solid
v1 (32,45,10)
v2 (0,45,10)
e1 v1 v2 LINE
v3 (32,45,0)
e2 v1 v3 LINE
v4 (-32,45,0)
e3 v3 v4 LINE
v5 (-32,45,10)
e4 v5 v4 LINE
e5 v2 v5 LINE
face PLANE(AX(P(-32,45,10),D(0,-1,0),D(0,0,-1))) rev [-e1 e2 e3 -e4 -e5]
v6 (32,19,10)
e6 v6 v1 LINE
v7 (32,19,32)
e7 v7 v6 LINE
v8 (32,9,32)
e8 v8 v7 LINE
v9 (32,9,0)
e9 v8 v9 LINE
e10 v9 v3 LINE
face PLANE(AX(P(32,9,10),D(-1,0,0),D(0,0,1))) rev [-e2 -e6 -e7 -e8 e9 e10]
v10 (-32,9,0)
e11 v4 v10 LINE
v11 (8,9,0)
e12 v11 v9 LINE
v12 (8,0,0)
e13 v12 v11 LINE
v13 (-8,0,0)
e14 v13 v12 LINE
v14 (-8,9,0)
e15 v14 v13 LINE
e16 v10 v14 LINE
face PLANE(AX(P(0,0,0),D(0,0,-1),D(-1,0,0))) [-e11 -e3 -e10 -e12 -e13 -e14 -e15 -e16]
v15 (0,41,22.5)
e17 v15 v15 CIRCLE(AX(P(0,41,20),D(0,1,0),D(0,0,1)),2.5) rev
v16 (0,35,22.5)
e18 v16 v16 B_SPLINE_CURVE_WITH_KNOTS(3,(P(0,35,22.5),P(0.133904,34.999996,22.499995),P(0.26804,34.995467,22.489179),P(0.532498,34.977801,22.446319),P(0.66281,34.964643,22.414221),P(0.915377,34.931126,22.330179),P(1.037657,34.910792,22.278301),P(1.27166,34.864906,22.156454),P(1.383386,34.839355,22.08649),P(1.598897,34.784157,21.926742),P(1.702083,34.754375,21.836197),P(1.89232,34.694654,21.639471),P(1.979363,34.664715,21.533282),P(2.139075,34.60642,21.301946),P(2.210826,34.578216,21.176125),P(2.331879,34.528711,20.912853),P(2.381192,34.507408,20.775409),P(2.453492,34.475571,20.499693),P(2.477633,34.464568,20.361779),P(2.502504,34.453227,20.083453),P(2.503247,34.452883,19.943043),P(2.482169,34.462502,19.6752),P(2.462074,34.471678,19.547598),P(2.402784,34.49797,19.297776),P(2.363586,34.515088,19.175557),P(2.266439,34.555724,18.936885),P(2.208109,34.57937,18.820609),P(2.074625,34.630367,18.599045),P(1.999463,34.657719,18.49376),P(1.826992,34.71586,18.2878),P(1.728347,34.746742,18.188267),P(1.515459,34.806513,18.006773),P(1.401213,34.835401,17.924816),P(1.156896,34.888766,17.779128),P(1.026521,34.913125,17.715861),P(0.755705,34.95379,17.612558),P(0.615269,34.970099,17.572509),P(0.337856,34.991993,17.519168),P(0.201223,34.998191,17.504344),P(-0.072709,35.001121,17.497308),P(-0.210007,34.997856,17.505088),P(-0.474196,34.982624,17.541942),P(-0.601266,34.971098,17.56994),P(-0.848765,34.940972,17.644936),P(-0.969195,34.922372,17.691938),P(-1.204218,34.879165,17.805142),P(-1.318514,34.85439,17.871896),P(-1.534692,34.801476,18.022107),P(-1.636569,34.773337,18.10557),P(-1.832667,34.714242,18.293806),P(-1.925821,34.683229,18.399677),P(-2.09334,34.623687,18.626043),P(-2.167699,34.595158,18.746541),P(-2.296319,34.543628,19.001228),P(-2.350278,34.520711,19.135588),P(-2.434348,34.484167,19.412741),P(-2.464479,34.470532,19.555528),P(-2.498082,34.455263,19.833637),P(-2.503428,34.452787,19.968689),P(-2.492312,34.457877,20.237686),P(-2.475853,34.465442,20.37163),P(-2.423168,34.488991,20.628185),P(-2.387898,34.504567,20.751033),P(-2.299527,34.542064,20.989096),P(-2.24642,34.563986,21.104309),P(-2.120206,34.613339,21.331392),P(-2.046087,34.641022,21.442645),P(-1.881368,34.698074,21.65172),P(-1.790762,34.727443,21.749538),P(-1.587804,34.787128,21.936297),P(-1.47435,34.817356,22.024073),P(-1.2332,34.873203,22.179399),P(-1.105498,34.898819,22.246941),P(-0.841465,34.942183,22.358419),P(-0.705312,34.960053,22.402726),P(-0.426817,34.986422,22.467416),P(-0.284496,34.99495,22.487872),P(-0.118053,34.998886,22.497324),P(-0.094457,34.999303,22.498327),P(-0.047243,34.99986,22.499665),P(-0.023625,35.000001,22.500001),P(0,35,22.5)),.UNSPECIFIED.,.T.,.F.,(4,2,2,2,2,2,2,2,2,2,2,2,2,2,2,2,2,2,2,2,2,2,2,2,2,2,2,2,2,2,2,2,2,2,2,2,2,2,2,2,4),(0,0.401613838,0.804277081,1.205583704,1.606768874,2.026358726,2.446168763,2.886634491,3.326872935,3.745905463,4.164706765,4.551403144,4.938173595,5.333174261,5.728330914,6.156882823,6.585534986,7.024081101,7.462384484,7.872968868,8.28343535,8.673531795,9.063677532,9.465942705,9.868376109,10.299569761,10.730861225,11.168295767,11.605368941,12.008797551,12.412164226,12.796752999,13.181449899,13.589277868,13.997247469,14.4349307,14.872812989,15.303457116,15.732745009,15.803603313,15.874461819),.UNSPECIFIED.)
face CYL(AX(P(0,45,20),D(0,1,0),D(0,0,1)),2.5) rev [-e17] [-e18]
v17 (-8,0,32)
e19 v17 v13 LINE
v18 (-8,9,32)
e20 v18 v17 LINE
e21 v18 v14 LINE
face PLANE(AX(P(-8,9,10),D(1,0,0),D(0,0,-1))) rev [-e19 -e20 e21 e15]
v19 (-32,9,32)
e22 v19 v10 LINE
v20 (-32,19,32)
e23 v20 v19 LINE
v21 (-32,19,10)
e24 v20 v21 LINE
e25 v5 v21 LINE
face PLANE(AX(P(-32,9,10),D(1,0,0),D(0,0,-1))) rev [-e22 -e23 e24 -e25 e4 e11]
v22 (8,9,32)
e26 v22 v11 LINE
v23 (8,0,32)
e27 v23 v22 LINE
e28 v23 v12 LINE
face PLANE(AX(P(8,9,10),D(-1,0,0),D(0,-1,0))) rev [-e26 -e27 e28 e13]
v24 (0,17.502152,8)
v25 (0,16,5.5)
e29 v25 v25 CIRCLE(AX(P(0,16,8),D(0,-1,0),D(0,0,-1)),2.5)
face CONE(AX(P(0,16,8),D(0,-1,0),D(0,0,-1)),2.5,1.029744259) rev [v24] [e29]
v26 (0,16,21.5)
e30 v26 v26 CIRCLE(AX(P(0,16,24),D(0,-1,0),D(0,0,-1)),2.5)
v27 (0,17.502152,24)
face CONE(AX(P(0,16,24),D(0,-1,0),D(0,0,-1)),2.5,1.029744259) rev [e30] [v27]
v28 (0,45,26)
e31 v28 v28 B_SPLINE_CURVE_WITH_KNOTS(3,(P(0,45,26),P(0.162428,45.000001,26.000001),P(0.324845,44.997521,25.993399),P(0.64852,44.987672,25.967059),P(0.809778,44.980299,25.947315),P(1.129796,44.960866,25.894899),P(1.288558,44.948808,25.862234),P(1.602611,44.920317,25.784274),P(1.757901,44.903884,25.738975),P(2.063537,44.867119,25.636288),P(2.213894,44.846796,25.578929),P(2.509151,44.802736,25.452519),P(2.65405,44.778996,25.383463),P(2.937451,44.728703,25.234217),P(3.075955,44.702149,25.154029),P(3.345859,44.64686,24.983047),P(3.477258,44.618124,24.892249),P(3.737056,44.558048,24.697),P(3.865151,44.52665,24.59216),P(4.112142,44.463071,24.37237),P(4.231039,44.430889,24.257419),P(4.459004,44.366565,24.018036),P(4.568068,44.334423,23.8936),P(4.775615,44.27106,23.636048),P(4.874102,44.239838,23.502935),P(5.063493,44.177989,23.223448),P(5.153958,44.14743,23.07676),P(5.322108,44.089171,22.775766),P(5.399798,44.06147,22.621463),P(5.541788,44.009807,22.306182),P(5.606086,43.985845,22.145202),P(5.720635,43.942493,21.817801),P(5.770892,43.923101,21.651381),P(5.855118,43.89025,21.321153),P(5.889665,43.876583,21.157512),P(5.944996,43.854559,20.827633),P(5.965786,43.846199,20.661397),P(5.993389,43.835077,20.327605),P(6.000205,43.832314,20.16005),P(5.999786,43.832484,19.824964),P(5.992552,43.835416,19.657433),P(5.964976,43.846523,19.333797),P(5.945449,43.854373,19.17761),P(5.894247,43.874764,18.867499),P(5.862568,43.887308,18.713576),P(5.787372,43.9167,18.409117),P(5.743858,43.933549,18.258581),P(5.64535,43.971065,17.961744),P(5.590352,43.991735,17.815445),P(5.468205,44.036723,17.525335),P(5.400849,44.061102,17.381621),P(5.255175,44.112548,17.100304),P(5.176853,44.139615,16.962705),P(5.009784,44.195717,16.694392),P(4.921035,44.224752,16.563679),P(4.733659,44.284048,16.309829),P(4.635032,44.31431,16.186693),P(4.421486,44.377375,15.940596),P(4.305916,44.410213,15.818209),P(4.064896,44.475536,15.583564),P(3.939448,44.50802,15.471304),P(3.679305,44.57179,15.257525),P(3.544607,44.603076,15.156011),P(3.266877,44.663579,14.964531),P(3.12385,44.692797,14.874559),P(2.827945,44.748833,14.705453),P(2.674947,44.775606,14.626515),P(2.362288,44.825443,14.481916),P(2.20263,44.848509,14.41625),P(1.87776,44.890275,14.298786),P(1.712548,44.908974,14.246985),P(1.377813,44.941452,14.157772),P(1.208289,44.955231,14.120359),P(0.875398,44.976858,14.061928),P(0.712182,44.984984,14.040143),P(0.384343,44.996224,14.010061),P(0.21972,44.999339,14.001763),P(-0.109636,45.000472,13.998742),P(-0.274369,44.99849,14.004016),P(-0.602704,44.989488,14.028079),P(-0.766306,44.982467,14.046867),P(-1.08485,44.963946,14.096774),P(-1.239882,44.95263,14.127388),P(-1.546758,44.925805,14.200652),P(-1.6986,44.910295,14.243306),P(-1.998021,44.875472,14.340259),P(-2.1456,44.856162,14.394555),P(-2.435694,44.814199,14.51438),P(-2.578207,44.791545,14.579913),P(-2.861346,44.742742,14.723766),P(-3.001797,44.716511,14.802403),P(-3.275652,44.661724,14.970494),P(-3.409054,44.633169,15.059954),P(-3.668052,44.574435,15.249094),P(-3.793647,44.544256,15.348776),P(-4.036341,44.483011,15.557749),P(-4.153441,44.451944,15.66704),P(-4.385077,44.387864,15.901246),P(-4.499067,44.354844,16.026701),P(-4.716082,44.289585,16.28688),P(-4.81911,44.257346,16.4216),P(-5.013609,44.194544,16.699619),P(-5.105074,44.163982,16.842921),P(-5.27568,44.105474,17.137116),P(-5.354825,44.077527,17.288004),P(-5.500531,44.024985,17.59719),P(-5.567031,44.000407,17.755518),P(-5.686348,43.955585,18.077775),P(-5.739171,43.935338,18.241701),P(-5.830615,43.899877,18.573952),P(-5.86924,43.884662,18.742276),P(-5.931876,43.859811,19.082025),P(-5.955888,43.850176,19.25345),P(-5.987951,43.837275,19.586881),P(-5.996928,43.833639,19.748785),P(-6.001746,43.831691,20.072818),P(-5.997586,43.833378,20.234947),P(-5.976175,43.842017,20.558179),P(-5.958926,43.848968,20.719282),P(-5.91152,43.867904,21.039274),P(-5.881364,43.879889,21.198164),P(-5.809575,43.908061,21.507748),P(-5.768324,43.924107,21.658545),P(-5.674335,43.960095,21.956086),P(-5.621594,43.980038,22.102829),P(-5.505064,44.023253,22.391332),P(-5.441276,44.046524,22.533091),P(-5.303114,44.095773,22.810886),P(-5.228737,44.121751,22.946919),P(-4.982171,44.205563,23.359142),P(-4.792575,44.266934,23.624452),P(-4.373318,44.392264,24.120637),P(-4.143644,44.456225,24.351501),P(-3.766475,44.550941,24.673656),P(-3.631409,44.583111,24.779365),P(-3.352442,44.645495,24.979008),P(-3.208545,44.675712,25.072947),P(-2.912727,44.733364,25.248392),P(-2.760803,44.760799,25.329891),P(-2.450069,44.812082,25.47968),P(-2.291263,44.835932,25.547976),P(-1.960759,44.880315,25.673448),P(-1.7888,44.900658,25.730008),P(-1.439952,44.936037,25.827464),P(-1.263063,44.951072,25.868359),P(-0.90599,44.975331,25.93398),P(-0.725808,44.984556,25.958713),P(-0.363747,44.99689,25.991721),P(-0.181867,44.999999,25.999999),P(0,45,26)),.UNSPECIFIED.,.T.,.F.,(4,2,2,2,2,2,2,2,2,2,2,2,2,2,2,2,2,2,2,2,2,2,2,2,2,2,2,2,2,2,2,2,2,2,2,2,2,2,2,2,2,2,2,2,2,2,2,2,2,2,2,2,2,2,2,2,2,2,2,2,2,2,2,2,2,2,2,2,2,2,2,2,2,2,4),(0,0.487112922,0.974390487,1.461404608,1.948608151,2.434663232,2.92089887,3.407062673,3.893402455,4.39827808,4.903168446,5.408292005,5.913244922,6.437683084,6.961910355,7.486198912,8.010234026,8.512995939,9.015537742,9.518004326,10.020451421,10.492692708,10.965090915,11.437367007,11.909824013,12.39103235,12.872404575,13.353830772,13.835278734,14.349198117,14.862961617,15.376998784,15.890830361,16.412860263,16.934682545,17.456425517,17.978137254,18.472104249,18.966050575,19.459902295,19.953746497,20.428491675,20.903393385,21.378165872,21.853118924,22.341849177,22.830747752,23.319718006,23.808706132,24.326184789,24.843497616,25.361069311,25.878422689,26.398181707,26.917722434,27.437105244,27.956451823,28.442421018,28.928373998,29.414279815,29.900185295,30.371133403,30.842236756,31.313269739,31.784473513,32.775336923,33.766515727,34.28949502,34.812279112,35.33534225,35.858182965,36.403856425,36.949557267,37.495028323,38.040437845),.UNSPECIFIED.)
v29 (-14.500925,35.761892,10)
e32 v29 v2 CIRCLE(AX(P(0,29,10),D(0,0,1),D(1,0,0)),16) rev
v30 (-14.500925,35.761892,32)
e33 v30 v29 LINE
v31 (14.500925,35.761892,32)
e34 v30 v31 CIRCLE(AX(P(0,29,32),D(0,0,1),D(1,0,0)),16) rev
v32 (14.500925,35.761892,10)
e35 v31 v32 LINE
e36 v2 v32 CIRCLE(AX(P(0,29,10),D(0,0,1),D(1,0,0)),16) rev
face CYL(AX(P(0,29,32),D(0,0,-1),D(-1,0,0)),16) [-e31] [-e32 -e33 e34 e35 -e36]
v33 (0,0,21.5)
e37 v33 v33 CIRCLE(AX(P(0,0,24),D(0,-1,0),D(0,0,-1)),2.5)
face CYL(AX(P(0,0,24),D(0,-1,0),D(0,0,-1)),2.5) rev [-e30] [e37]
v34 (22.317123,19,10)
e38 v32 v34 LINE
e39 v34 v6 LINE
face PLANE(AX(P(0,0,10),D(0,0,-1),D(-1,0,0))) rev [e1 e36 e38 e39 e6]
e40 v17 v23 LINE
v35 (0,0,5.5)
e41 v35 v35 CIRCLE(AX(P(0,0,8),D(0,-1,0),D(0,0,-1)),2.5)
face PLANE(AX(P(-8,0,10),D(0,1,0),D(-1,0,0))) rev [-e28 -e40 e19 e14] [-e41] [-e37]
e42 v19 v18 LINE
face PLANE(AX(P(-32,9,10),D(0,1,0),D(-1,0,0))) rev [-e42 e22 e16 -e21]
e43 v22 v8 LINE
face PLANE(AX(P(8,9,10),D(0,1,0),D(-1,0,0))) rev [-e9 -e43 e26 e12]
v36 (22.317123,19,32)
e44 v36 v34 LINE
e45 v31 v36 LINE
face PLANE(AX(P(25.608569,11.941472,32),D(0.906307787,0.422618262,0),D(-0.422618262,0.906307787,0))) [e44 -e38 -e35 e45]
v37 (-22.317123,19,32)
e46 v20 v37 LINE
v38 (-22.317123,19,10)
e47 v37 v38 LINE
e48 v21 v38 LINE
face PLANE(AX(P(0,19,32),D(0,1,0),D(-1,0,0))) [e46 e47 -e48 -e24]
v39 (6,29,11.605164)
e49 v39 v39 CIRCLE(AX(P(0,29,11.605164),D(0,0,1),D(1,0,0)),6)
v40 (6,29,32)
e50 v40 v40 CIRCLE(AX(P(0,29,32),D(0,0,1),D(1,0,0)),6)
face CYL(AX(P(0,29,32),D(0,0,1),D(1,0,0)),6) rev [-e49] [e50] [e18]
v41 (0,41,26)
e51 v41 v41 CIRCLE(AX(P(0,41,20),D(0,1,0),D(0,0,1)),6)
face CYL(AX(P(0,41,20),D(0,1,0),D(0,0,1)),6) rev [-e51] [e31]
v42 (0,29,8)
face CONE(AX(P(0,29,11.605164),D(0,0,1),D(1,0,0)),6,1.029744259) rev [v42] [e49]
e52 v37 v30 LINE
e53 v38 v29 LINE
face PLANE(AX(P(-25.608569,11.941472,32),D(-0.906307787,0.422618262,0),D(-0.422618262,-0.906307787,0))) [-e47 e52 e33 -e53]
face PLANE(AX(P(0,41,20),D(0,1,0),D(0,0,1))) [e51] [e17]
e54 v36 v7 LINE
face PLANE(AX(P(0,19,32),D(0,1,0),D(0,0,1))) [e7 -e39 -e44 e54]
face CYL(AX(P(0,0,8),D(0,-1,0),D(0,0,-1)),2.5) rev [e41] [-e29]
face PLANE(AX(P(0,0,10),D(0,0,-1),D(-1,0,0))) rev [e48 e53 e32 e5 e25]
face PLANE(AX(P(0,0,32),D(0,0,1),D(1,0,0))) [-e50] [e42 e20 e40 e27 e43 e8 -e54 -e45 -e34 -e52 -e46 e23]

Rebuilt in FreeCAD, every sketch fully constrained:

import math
import FreeCAD as App
import Part
import Sketcher
Q = App.Units.Quantity

doc = App.newDocument("Part")
params = doc.addObject("Spreadsheet::Sheet", "Params")
for row, (alias, value) in enumerate([
    ("sketch1_width", "24 mm"),
    ("sketch1_width2", "16 mm"),
    ("sketch1_height", "9 mm"),
    ("sketch1_height2", "36 mm"),
    ("pad1_length", "10 mm"),
    ("sketch2_radius", "16 mm"),
    ("sketch2_width", "24 mm"),
    ("sketch2_width2", "16 mm"),
    ("sketch2_height", "10 mm"),
    ("sketch2_height2", "9 mm"),
    ("pad2_length", "22 mm"),
    ("sketch3_diameter", "12 mm"),
    ("hole_diameter", "12 mm"),
    ("hole_depth", "20.394836 mm"),
    ("sketch4_diameter", "5 mm"),
    ("hole2_diameter", "5 mm"),
    ("hole2_depth", "16 mm"),
    ("sketch5_diameter", "5 mm"),
    ("hole3_diameter", "5 mm"),
    ("hole3_depth", "16 mm"),
    ("hole3_csink_diameter", "5.05 mm"),
    ("sketch6_diameter", "12 mm"),
    ("pocket1_length", "4 mm"),
], start=1):
    params.set(f"A{row}", alias)
    params.set(f"B{row}", "=" + value)
    params.setAlias(f"B{row}", alias)

body = doc.addObject("PartDesign::Body", "Body")

# Sketch on XY plane
sketch1 = body.newObject("Sketcher::SketchObject", "Sketch")
sketch1.AttachmentSupport = (doc.getObject("XY_Plane"), [""])
sketch1.MapMode = "FlatFace"
sketch1.addGeometry([
    Part.LineSegment(App.Vector(-32, 9, 0), App.Vector(-8, 9, 0)),  # 0
    Part.LineSegment(App.Vector(-8, 9, 0), App.Vector(-8, 0, 0)),  # 1
    Part.LineSegment(App.Vector(-8, 0, 0), App.Vector(8, 0, 0)),  # 2
    Part.LineSegment(App.Vector(8, 0, 0), App.Vector(8, 9, 0)),  # 3
    Part.LineSegment(App.Vector(8, 9, 0), App.Vector(32, 9, 0)),  # 4
    Part.LineSegment(App.Vector(32, 9, 0), App.Vector(32, 45, 0)),  # 5
    Part.LineSegment(App.Vector(32, 45, 0), App.Vector(-32, 45, 0)),  # 6
    Part.LineSegment(App.Vector(-32, 45, 0), App.Vector(-32, 9, 0)),  # 7
], False)
sketch1.addConstraint([
    Sketcher.Constraint("Coincident", 0, 2, 1, 1),
    Sketcher.Constraint("Coincident", 1, 2, 2, 1),
    Sketcher.Constraint("Coincident", 2, 2, 3, 1),
    Sketcher.Constraint("Coincident", 3, 2, 4, 1),
    Sketcher.Constraint("Coincident", 4, 2, 5, 1),
    Sketcher.Constraint("Coincident", 5, 2, 6, 1),
    Sketcher.Constraint("Coincident", 6, 2, 7, 1),
    Sketcher.Constraint("Coincident", 7, 2, 0, 1),
    Sketcher.Constraint("Horizontal", 0),
    Sketcher.Constraint("Vertical", 1),
    Sketcher.Constraint("Horizontal", 2),
    Sketcher.Constraint("Vertical", 3),
    Sketcher.Constraint("Horizontal", 4),
    Sketcher.Constraint("Vertical", 5),
    Sketcher.Constraint("Horizontal", 6),
    Sketcher.Constraint("Vertical", 7),
    Sketcher.Constraint("Symmetric", 1, 2, 2, 2, -1, 1),
    Sketcher.Constraint("Symmetric", 4, 2, 7, 2, -2),
    Sketcher.Constraint("DistanceX", 0, 1, 0, 2, Q("24 mm")),
    Sketcher.Constraint("DistanceX", 2, 1, 2, 2, Q("16 mm")),
    Sketcher.Constraint("DistanceY", 1, 2, 1, 1, Q("9 mm")),
    Sketcher.Constraint("DistanceY", 5, 1, 5, 2, Q("36 mm")),
])
sketch1.setExpression("Constraints[18]", "Params.sketch1_width")
sketch1.setExpression("Constraints[19]", "Params.sketch1_width2")
sketch1.setExpression("Constraints[20]", "Params.sketch1_height")
sketch1.setExpression("Constraints[21]", "Params.sketch1_height2")
pad1 = body.newObject("PartDesign::Pad", "Pad")
pad1.Profile = sketch1
pad1.setExpression("Length", "Params.pad1_length")

# Sketch on XY plane
sketch2 = body.newObject("Sketcher::SketchObject", "Sketch001")
sketch2.AttachmentSupport = (doc.getObject("XY_Plane"), [""])
sketch2.MapMode = "FlatFace"
sketch2.AttachmentOffset = App.Placement(App.Vector(0, 0, 10), App.Rotation())
sketch2.addGeometry([
    Part.LineSegment(App.Vector(-32, 19, 0), App.Vector(-32, 9, 0)),  # 0
    Part.LineSegment(App.Vector(-32, 9, 0), App.Vector(-8, 9, 0)),  # 1
    Part.LineSegment(App.Vector(-8, 9, 0), App.Vector(-8, 0, 0)),  # 2
    Part.LineSegment(App.Vector(-8, 0, 0), App.Vector(8, 0, 0)),  # 3
    Part.LineSegment(App.Vector(8, 0, 0), App.Vector(8, 9, 0)),  # 4
    Part.LineSegment(App.Vector(8, 9, 0), App.Vector(32, 9, 0)),  # 5
    Part.LineSegment(App.Vector(32, 9, 0), App.Vector(32, 19, 0)),  # 6
    Part.LineSegment(App.Vector(32, 19, 0), App.Vector(22.317123, 19, 0)),  # 7
    Part.LineSegment(App.Vector(22.317123, 19, 0), App.Vector(14.500925, 35.761892, 0)),  # 8
    Part.ArcOfCircle(Part.Circle(App.Vector(0, 29, 0), App.Vector(0, 0, 1), 16), math.radians(25), math.radians(90)),  # 9
    Part.ArcOfCircle(Part.Circle(App.Vector(0, 29, 0), App.Vector(0, 0, 1), 16), math.radians(90), math.radians(155)),  # 10
    Part.LineSegment(App.Vector(-14.500925, 35.761892, 0), App.Vector(-22.317123, 19, 0)),  # 11
    Part.LineSegment(App.Vector(-22.317123, 19, 0), App.Vector(-32, 19, 0)),  # 12
], False)
sketch2.addConstraint([
    Sketcher.Constraint("Coincident", 0, 2, 1, 1),
    Sketcher.Constraint("Coincident", 1, 2, 2, 1),
    Sketcher.Constraint("Coincident", 2, 2, 3, 1),
    Sketcher.Constraint("Coincident", 3, 2, 4, 1),
    Sketcher.Constraint("Coincident", 4, 2, 5, 1),
    Sketcher.Constraint("Coincident", 5, 2, 6, 1),
    Sketcher.Constraint("Coincident", 6, 2, 7, 1),
    Sketcher.Constraint("Coincident", 7, 2, 8, 1),
    Sketcher.Constraint("Tangent", 8, 2, 9, 1),
    Sketcher.Constraint("Tangent", 9, 2, 10, 1),
    Sketcher.Constraint("Tangent", 10, 2, 11, 1),
    Sketcher.Constraint("Coincident", 11, 2, 12, 1),
    Sketcher.Constraint("Coincident", 12, 2, 0, 1),
    Sketcher.Constraint("Vertical", 0),
    Sketcher.Constraint("Horizontal", 1),
    Sketcher.Constraint("Vertical", 2),
    Sketcher.Constraint("Horizontal", 3),
    Sketcher.Constraint("Vertical", 4),
    Sketcher.Constraint("Horizontal", 5),
    Sketcher.Constraint("Vertical", 6),
    Sketcher.Constraint("Horizontal", 7),
    Sketcher.Constraint("Horizontal", 12),
    Sketcher.Constraint("Equal", 9, 10),
    Sketcher.Constraint("Symmetric", 2, 2, 3, 2, -1, 1),
    Sketcher.Constraint("Symmetric", 0, 2, 5, 2, -2),
    Sketcher.Constraint("Symmetric", 8, 2, 10, 2, -2),
    Sketcher.Constraint("PointOnObject", 9, 2, -2),
    Sketcher.Constraint("Horizontal", 7, 2, 11, 2),
    Sketcher.Constraint("Radius", 9, Q("16 mm")),
    Sketcher.Constraint("DistanceX", 1, 1, 1, 2, Q("24 mm")),
    Sketcher.Constraint("DistanceX", 3, 1, 3, 2, Q("16 mm")),
    Sketcher.Constraint("DistanceY", 0, 2, 0, 1, Q("10 mm")),
    Sketcher.Constraint("DistanceY", 2, 2, 2, 1, Q("9 mm")),
    Sketcher.Constraint("Angle", 8, Q("115 deg")),
    Sketcher.Constraint("DistanceY", -1, 1, 9, 3, Q("29 mm")),
])
sketch2.setExpression("Constraints[28]", "Params.sketch2_radius")
sketch2.setExpression("Constraints[29]", "Params.sketch2_width")
sketch2.setExpression("Constraints[30]", "Params.sketch2_width2")
sketch2.setExpression("Constraints[31]", "Params.sketch2_height")
sketch2.setExpression("Constraints[32]", "Params.sketch2_height2")
pad2 = body.newObject("PartDesign::Pad", "Pad001")
pad2.Profile = sketch2
pad2.setExpression("Length", "Params.pad2_length")

# Sketch on XY plane
sketch3 = body.newObject("Sketcher::SketchObject", "Sketch002")
sketch3.AttachmentSupport = (doc.getObject("XY_Plane"), [""])
sketch3.MapMode = "FlatFace"
sketch3.AttachmentOffset = App.Placement(App.Vector(0, 0, 32), App.Rotation())
sketch3.addGeometry(Part.Circle(App.Vector(0, 29, 0), App.Vector(0, 0, 1), 6), False)
sketch3.addConstraint([
    Sketcher.Constraint("PointOnObject", 0, 3, -2),
    Sketcher.Constraint("Diameter", 0, Q("12 mm")),
    Sketcher.Constraint("DistanceY", -1, 1, 0, 3, Q("29 mm")),
])
sketch3.setExpression("Constraints[1]", "Params.sketch3_diameter")
doc.recompute()
hole = body.newObject("PartDesign::Hole", "Hole")
hole.Profile = sketch3
hole.ThreadType = "None"
hole.setExpression("Diameter", "Params.hole_diameter")
hole.DepthType = "Dimension"
hole.setExpression("Depth", "Params.hole_depth")
hole.DrillPoint = "Angled"
hole.DrillPointAngle = 118

# Sketch on XZ plane
sketch4 = body.newObject("Sketcher::SketchObject", "Sketch003")
sketch4.AttachmentSupport = (doc.getObject("XZ_Plane"), [""])
sketch4.MapMode = "FlatFace"
sketch4.addGeometry([
    Part.Circle(App.Vector(0, 8, 0), App.Vector(0, 0, 1), 2.5),
    Part.Circle(App.Vector(0, 24, 0), App.Vector(0, 0, 1), 2.5),
], False)
sketch4.addConstraint([
    Sketcher.Constraint("Equal", 0, 1),
    Sketcher.Constraint("PointOnObject", 0, 3, -2),
    Sketcher.Constraint("PointOnObject", 1, 3, -2),
    Sketcher.Constraint("Diameter", 0, Q("5 mm")),
    Sketcher.Constraint("DistanceY", -1, 1, 0, 3, Q("8 mm")),
    Sketcher.Constraint("DistanceY", -1, 1, 1, 3, Q("24 mm")),
])
sketch4.setExpression("Constraints[3]", "Params.sketch4_diameter")
doc.recompute()
hole2 = body.newObject("PartDesign::Hole", "Hole001")
hole2.Profile = sketch4
hole2.ThreadType = "None"
hole2.setExpression("Diameter", "Params.hole2_diameter")
hole2.DepthType = "Dimension"
hole2.setExpression("Depth", "Params.hole2_depth")
hole2.DrillPoint = "Angled"
hole2.DrillPointAngle = 118

# Sketch on XZ plane
sketch5 = body.newObject("Sketcher::SketchObject", "Sketch004")
sketch5.AttachmentSupport = (doc.getObject("XZ_Plane"), [""])
sketch5.MapMode = "FlatFace"
sketch5.AttachmentOffset = App.Placement(App.Vector(0, 0, -45), App.Rotation())
sketch5.addGeometry(Part.Circle(App.Vector(0, 20, 0), App.Vector(0, 0, 1), 2.5), False)
sketch5.addConstraint([
    Sketcher.Constraint("PointOnObject", 0, 3, -2),
    Sketcher.Constraint("Diameter", 0, Q("5 mm")),
    Sketcher.Constraint("DistanceY", -1, 1, 0, 3, Q("20 mm")),
])
sketch5.setExpression("Constraints[1]", "Params.sketch5_diameter")
doc.recompute()
hole3 = body.newObject("PartDesign::Hole", "Hole002")
hole3.Profile = sketch5
hole3.ThreadType = "None"
hole3.setExpression("Diameter", "Params.hole3_diameter")
hole3.DepthType = "Dimension"
hole3.setExpression("Depth", "Params.hole3_depth")
hole3.DrillPoint = "Angled"
hole3.DrillPointAngle = 118
hole3.HoleCutType = "Countersink"
hole3.setExpression("HoleCutDiameter", "Params.hole3_csink_diameter")
hole3.HoleCutCountersinkAngle = 100
hole3.Reversed = True

# Sketch on XZ plane
sketch6 = body.newObject("Sketcher::SketchObject", "Sketch005")
sketch6.AttachmentSupport = (doc.getObject("XZ_Plane"), [""])
sketch6.MapMode = "FlatFace"
sketch6.AttachmentOffset = App.Placement(App.Vector(0, 0, -45), App.Rotation())
sketch6.addGeometry(Part.Circle(App.Vector(0, 20, 0), App.Vector(0, 0, 1), 6), False)
sketch6.addConstraint([
    Sketcher.Constraint("PointOnObject", 0, 3, -2),
    Sketcher.Constraint("Diameter", 0, Q("12 mm")),
    Sketcher.Constraint("DistanceY", -1, 1, 0, 3, Q("20 mm")),
])
sketch6.setExpression("Constraints[1]", "Params.sketch6_diameter")
pocket1 = body.newObject("PartDesign::Pocket", "Pocket")
pocket1.Profile = sketch6
pocket1.setExpression("Length", "Params.pocket1_length")
pocket1.Reversed = True

doc.recompute()
